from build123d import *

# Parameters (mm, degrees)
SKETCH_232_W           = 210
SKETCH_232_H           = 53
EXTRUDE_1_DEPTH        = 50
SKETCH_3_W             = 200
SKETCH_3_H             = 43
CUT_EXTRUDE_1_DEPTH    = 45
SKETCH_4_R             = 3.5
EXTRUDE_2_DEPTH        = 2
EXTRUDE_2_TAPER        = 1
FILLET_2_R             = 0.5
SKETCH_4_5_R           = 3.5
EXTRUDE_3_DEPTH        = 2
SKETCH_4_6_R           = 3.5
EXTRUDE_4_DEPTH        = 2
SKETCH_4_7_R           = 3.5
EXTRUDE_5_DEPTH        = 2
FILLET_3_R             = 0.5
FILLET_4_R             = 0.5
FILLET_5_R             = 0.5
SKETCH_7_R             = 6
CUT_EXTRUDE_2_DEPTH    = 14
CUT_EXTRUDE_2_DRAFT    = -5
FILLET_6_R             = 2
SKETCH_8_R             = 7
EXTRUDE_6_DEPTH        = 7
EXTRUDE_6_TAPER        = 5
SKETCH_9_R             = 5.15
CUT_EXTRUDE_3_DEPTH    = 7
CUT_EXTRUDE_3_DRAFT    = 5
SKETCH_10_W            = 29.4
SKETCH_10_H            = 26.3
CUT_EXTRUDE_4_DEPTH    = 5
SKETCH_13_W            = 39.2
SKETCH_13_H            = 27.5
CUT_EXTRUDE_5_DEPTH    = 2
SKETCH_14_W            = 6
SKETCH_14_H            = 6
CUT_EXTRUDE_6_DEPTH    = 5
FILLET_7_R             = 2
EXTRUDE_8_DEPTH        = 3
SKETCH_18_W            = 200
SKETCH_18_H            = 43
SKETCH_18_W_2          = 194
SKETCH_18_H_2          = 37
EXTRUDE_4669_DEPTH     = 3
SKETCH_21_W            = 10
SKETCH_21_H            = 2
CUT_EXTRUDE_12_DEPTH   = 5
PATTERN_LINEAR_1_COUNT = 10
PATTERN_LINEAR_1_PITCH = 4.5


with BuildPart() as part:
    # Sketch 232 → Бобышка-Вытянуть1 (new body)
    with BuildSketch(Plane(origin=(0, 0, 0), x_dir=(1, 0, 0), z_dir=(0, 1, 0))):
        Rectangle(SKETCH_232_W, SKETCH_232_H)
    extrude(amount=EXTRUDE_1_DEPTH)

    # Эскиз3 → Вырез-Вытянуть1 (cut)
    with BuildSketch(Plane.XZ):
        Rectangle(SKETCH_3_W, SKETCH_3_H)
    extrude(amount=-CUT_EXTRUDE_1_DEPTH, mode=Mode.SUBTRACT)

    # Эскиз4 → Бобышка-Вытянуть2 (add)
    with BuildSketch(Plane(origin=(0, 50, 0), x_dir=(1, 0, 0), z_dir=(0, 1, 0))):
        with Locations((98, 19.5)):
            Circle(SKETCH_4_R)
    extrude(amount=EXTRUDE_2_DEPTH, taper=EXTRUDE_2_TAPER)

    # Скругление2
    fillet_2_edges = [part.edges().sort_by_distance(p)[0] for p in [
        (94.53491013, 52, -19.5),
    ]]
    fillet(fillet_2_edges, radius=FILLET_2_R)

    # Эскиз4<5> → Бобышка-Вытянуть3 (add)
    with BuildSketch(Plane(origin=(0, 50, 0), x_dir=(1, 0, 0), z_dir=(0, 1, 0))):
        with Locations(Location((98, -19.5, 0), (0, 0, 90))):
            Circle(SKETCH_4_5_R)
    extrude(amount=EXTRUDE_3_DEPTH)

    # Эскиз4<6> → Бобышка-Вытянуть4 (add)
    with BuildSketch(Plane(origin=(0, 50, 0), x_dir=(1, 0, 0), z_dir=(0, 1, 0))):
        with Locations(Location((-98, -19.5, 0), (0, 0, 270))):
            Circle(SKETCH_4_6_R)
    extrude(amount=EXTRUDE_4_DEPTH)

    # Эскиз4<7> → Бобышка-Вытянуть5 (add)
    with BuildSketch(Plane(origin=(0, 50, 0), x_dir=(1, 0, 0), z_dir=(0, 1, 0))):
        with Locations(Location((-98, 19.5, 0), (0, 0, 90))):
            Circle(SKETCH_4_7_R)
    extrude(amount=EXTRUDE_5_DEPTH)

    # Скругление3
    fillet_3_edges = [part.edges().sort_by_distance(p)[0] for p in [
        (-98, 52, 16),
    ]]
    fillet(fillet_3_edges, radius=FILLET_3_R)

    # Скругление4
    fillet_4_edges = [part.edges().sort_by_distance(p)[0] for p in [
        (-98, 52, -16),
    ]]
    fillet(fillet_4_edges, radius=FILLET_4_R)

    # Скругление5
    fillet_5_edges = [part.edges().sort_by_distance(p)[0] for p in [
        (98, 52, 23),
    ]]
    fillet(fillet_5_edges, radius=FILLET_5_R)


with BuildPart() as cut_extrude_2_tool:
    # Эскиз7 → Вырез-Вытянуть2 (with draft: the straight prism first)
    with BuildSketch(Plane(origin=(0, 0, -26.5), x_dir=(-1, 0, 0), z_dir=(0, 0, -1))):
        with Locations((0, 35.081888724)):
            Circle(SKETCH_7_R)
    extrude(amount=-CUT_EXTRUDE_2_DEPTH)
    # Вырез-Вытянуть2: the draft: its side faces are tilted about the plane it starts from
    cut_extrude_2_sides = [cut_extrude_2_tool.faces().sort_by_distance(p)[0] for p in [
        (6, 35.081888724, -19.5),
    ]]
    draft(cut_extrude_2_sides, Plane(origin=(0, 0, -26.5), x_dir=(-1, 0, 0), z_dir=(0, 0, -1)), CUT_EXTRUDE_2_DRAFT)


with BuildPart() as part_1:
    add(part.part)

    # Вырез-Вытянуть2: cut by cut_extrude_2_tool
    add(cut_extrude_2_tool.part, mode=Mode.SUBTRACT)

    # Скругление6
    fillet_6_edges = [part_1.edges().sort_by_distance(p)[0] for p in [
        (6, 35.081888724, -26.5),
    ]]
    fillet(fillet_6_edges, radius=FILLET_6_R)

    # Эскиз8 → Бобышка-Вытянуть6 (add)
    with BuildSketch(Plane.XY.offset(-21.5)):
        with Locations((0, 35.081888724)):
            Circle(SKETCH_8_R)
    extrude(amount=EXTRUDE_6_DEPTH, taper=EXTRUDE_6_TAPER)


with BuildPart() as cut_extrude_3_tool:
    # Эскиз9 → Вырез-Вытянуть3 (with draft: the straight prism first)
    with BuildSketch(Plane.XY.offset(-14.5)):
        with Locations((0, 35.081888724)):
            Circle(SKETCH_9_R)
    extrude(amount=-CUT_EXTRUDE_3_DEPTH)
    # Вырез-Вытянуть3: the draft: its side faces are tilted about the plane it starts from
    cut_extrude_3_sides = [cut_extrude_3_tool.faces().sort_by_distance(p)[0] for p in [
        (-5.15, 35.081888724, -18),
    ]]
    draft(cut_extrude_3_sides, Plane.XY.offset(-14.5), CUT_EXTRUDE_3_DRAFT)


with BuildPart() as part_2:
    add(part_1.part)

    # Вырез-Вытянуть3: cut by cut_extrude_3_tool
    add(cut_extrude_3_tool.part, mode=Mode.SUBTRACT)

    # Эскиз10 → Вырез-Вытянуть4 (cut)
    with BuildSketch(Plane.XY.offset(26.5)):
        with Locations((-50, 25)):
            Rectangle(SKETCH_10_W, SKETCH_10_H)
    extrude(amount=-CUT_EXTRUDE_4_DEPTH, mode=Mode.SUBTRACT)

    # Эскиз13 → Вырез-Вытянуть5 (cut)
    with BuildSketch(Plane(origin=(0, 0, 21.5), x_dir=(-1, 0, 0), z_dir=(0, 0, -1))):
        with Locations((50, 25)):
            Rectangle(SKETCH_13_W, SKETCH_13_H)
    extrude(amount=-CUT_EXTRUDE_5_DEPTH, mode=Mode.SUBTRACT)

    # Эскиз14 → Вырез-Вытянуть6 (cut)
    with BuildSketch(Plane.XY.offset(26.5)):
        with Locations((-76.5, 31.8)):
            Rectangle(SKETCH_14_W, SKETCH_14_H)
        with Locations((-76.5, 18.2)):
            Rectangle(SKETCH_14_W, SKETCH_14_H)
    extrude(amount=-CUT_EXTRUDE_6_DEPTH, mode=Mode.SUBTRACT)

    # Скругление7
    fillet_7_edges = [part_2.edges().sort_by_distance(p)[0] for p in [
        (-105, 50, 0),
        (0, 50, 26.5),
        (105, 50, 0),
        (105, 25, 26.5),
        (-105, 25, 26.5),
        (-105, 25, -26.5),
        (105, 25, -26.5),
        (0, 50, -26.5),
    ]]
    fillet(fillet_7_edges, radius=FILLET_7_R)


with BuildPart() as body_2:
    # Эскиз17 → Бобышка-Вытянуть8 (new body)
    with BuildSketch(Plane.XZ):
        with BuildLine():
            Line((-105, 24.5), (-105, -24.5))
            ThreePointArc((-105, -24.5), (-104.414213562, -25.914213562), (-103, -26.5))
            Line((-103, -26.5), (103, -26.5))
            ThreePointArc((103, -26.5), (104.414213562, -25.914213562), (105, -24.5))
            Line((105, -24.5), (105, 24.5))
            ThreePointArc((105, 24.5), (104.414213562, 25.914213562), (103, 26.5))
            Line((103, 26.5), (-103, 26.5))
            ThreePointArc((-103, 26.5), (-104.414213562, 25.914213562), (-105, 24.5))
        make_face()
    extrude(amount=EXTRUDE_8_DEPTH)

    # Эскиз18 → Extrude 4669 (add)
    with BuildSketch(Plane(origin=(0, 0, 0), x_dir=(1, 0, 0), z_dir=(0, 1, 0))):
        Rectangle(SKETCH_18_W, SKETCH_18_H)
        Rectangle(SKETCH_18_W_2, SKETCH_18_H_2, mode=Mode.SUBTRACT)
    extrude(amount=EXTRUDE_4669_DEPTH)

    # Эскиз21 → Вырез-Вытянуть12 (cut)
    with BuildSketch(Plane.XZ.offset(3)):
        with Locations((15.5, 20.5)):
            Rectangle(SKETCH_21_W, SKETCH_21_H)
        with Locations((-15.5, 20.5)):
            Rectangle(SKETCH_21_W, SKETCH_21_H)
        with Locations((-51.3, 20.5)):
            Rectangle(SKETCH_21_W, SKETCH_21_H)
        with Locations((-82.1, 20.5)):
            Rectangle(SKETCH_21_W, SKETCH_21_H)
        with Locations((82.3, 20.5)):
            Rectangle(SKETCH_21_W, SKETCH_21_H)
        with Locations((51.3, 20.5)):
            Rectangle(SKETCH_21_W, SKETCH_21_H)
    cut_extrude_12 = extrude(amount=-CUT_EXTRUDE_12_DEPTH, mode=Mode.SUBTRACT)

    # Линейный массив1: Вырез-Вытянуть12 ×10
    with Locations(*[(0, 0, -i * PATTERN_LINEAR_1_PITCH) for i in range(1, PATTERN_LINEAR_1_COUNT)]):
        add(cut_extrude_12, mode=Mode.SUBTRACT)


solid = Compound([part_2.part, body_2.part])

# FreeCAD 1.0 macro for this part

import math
import FreeCAD as App
import Part
import Sketcher

V = App.Vector
Q = App.Units.Quantity


def edges_at(feature, points):
    """Names of the edges that pass closest to the given points."""
    edges = feature.Shape.Edges
    near = lambda p: min(range(len(edges)), key=lambda i: edges[i].distToShape(Part.Vertex(*p))[0])
    return sorted({f"Edge{near(p) + 1}" for p in points})


def faces_at(feature, points):
    """Names of the faces that lie closest to the given points."""
    faces = feature.Shape.Faces
    near = lambda p: min(range(len(faces)), key=lambda i: faces[i].distToShape(Part.Vertex(*p))[0])
    return sorted({f"Face{near(p) + 1}" for p in points})


def add_polygon(sketch, points):
    """Adds a closed chain of lines whose ends are joined by coincident constraints."""
    first, n = sketch.GeometryCount, len(points)
    for a, b in zip(points, points[1:] + points[:1]):
        sketch.addGeometry(Part.LineSegment(App.Vector(*a, 0), App.Vector(*b, 0)), False)
    for i in range(n):
        sketch.addConstraint(Sketcher.Constraint("Coincident", first + i, 2, first + (i + 1) % n, 1))

doc = App.newDocument("Part")
params = doc.addObject("Spreadsheet::Sheet", "Params")
for row, (alias, value) in enumerate([
    ("sketch1_width", "210 mm"),
    ("sketch1_height", "53 mm"),
    ("pad1_length", "50 mm"),
    ("sketch2_width", "200 mm"),
    ("sketch2_height", "43 mm"),
    ("pocket1_length", "45 mm"),
    ("sketch3_diameter", "7 mm"),
    ("pad2_length", "2 mm"),
    ("pad2_taper", "-1 deg"),
    ("fillet_radius", "0.5 mm"),
    ("sketch4_diameter", "7 mm"),
    ("pad3_length", "2 mm"),
    ("sketch5_diameter", "7 mm"),
    ("pad4_length", "2 mm"),
    ("sketch6_diameter", "7 mm"),
    ("pad5_length", "2 mm"),
    ("fillet2_radius", "0.5 mm"),
    ("fillet3_radius", "0.5 mm"),
    ("fillet4_radius", "0.5 mm"),
    ("sketch7_diameter", "12 mm"),
    ("pad6_length", "14 mm"),
    ("draft_angle", "5 deg"),
    ("fillet5_radius", "2 mm"),
    ("sketch8_diameter", "14 mm"),
    ("pad7_length", "7 mm"),
    ("pad7_taper", "-5 deg"),
    ("sketch9_diameter", "10.3 mm"),
    ("pad8_length", "7 mm"),
    ("draft2_angle", "5 deg"),
    ("sketch10_width", "29.4 mm"),
    ("sketch10_height", "26.3 mm"),
    ("pocket2_length", "5 mm"),
    ("sketch11_width", "39.2 mm"),
    ("sketch11_height", "27.5 mm"),
    ("pocket3_length", "2 mm"),
    ("sketch12_width", "6 mm"),
    ("pocket4_length", "5 mm"),
    ("fillet6_radius", "2 mm"),
    ("sketch13_radius", "2 mm"),
    ("sketch13_width", "206 mm"),
    ("sketch13_height", "49 mm"),
    ("pad9_length", "3 mm"),
    ("sketch14_width", "200 mm"),
    ("sketch14_width2", "194 mm"),
    ("sketch14_height", "43 mm"),
    ("sketch14_height2", "37 mm"),
    ("pad10_length", "3 mm"),
    ("sketch15_width", "10 mm"),
    ("sketch15_height", "2 mm"),
    ("pocket5_length", "5 mm"),
    ("linearpattern_pitch", "4.5 mm"),
], start=1):
    params.set(f"A{row}", alias)
    params.set(f"B{row}", "=" + value)
    params.setAlias(f"B{row}", alias)

body = doc.addObject("PartDesign::Body", "Body")

# Sketch on XZ plane
sketch1 = body.newObject("Sketcher::SketchObject", "Sketch")
sketch1.AttachmentSupport = (doc.getObject("XZ_Plane"), [""])
sketch1.MapMode = "FlatFace"
add_polygon(sketch1, [(-105, -26.5), (-105, 26.5), (105, 26.5), (105, -26.5)])  # lines 0-3
sketch1.addConstraint(Sketcher.Constraint("Vertical", 0))
sketch1.addConstraint(Sketcher.Constraint("Horizontal", 1))
sketch1.addConstraint(Sketcher.Constraint("Vertical", 2))
sketch1.addConstraint(Sketcher.Constraint("Horizontal", 3))
sketch1.addConstraint(Sketcher.Constraint("Symmetric", 0, 2, 2, 2, -1, 1))
sketch1.addConstraint(Sketcher.Constraint("DistanceX", 1, 1, 1, 2, Q("210 mm")))
sketch1.addConstraint(Sketcher.Constraint("DistanceY", 0, 1, 0, 2, Q("53 mm")))
sketch1.setExpression("Constraints[9]", "Params.sketch1_width")
sketch1.setExpression("Constraints[10]", "Params.sketch1_height")
pad1 = body.newObject("PartDesign::Pad", "Pad")
pad1.Profile = sketch1
pad1.setExpression("Length", "Params.pad1_length")
pad1.Reversed = True

# Sketch on XZ plane
sketch2 = body.newObject("Sketcher::SketchObject", "Sketch001")
sketch2.AttachmentSupport = (doc.getObject("XZ_Plane"), [""])
sketch2.MapMode = "FlatFace"
add_polygon(sketch2, [(-100, 21.5), (-100, -21.5), (100, -21.5), (100, 21.5)])  # lines 0-3
sketch2.addConstraint(Sketcher.Constraint("Vertical", 0))
sketch2.addConstraint(Sketcher.Constraint("Horizontal", 1))
sketch2.addConstraint(Sketcher.Constraint("Vertical", 2))
sketch2.addConstraint(Sketcher.Constraint("Horizontal", 3))
sketch2.addConstraint(Sketcher.Constraint("Symmetric", 0, 2, 2, 2, -1, 1))
sketch2.addConstraint(Sketcher.Constraint("DistanceX", 1, 1, 1, 2, Q("200 mm")))
sketch2.addConstraint(Sketcher.Constraint("DistanceY", 0, 2, 0, 1, Q("43 mm")))
sketch2.setExpression("Constraints[9]", "Params.sketch2_width")
sketch2.setExpression("Constraints[10]", "Params.sketch2_height")
pocket1 = body.newObject("PartDesign::Pocket", "Pocket")
pocket1.Profile = sketch2
pocket1.setExpression("Length", "Params.pocket1_length")

# Sketch on XZ plane
sketch3 = body.newObject("Sketcher::SketchObject", "Sketch002")
sketch3.AttachmentSupport = (doc.getObject("XZ_Plane"), [""])
sketch3.MapMode = "FlatFace"
sketch3.AttachmentOffset = App.Placement(V(0, 0, -50), App.Rotation())
sketch3.addGeometry(Part.Circle(V(98, -19.5, 0), V(0, 0, 1), 3.5), False)
sketch3.addConstraint(Sketcher.Constraint("Diameter", 0, Q("7 mm")))
sketch3.addConstraint(Sketcher.Constraint("DistanceX", -1, 1, 0, 3, Q("98 mm")))
sketch3.addConstraint(Sketcher.Constraint("DistanceY", 0, 3, -1, 1, Q("19.5 mm")))
sketch3.setExpression("Constraints[0]", "Params.sketch3_diameter")
pad2 = body.newObject("PartDesign::Pad", "Pad001")
pad2.Profile = sketch3
pad2.setExpression("Length", "Params.pad2_length")
pad2.Reversed = True
pad2.setExpression("TaperAngle", "Params.pad2_taper")
doc.recompute()

fillet = body.newObject("PartDesign::Fillet", "Fillet")
fillet.Base = (pad2, edges_at(pad2, [(94.535, 52, -19.5)]))
fillet.setExpression("Radius", "Params.fillet_radius")

# Sketch on XZ plane
sketch4 = body.newObject("Sketcher::SketchObject", "Sketch003")
sketch4.AttachmentSupport = (doc.getObject("XZ_Plane"), [""])
sketch4.MapMode = "FlatFace"
sketch4.AttachmentOffset = App.Placement(V(0, 0, -50), App.Rotation())
sketch4.addGeometry(Part.Circle(V(98, 19.5, 0), V(0, 0, 1), 3.5), False)
sketch4.addConstraint(Sketcher.Constraint("Diameter", 0, Q("7 mm")))
sketch4.addConstraint(Sketcher.Constraint("DistanceX", -1, 1, 0, 3, Q("98 mm")))
sketch4.addConstraint(Sketcher.Constraint("DistanceY", -1, 1, 0, 3, Q("19.5 mm")))
sketch4.setExpression("Constraints[0]", "Params.sketch4_diameter")
pad3 = body.newObject("PartDesign::Pad", "Pad002")
pad3.Profile = sketch4
pad3.setExpression("Length", "Params.pad3_length")
pad3.Reversed = True

# Sketch on XZ plane
sketch5 = body.newObject("Sketcher::SketchObject", "Sketch004")
sketch5.AttachmentSupport = (doc.getObject("XZ_Plane"), [""])
sketch5.MapMode = "FlatFace"
sketch5.AttachmentOffset = App.Placement(V(0, 0, -50), App.Rotation())
sketch5.addGeometry(Part.Circle(V(-98, 19.5, 0), V(0, 0, 1), 3.5), False)
sketch5.addConstraint(Sketcher.Constraint("Diameter", 0, Q("7 mm")))
sketch5.addConstraint(Sketcher.Constraint("DistanceX", 0, 3, -1, 1, Q("98 mm")))
sketch5.addConstraint(Sketcher.Constraint("DistanceY", -1, 1, 0, 3, Q("19.5 mm")))
sketch5.setExpression("Constraints[0]", "Params.sketch5_diameter")
pad4 = body.newObject("PartDesign::Pad", "Pad003")
pad4.Profile = sketch5
pad4.setExpression("Length", "Params.pad4_length")
pad4.Reversed = True

# Sketch on XZ plane
sketch6 = body.newObject("Sketcher::SketchObject", "Sketch005")
sketch6.AttachmentSupport = (doc.getObject("XZ_Plane"), [""])
sketch6.MapMode = "FlatFace"
sketch6.AttachmentOffset = App.Placement(V(0, 0, -50), App.Rotation())
sketch6.addGeometry(Part.Circle(V(-98, -19.5, 0), V(0, 0, 1), 3.5), False)
sketch6.addConstraint(Sketcher.Constraint("Diameter", 0, Q("7 mm")))
sketch6.addConstraint(Sketcher.Constraint("DistanceX", 0, 3, -1, 1, Q("98 mm")))
sketch6.addConstraint(Sketcher.Constraint("DistanceY", 0, 3, -1, 1, Q("19.5 mm")))
sketch6.setExpression("Constraints[0]", "Params.sketch6_diameter")
pad5 = body.newObject("PartDesign::Pad", "Pad004")
pad5.Profile = sketch6
pad5.setExpression("Length", "Params.pad5_length")
pad5.Reversed = True
doc.recompute()

fillet2 = body.newObject("PartDesign::Fillet", "Fillet001")
fillet2.Base = (pad5, edges_at(pad5, [(-98, 52, 16)]))
fillet2.setExpression("Radius", "Params.fillet2_radius")
doc.recompute()

fillet3 = body.newObject("PartDesign::Fillet", "Fillet002")
fillet3.Base = (fillet2, edges_at(fillet2, [(-98, 52, -16)]))
fillet3.setExpression("Radius", "Params.fillet3_radius")
doc.recompute()

fillet4 = body.newObject("PartDesign::Fillet", "Fillet003")
fillet4.Base = (fillet3, edges_at(fillet3, [(98, 52, 23)]))
fillet4.setExpression("Radius", "Params.fillet4_radius")
body2 = doc.addObject("PartDesign::Body", "Body001")

# Sketch on XY plane
sketch7 = body2.newObject("Sketcher::SketchObject", "Sketch006")
sketch7.AttachmentSupport = (doc.getObject("XY_Plane001"), [""])
sketch7.MapMode = "FlatFace"
sketch7.AttachmentOffset = App.Placement(V(0, 0, -26.5), App.Rotation())
sketch7.addGeometry(Part.Circle(V(0, 35.081889, 0), V(0, 0, 1), 6), False)
sketch7.addConstraint(Sketcher.Constraint("PointOnObject", 0, 3, -2))
sketch7.addConstraint(Sketcher.Constraint("Diameter", 0, Q("12 mm")))
sketch7.addConstraint(Sketcher.Constraint("DistanceY", -1, 1, 0, 3, Q("35.081889 mm")))
sketch7.setExpression("Constraints[1]", "Params.sketch7_diameter")
pad6 = body2.newObject("PartDesign::Pad", "Pad005")
pad6.Profile = sketch7
pad6.setExpression("Length", "Params.pad6_length")
doc.recompute()

datumplane = body2.newObject("PartDesign::Plane", "DatumPlane")
datumplane.AttachmentSupport = (doc.getObject("XY_Plane001"), [""])
datumplane.MapMode = "FlatFace"
datumplane.AttachmentOffset = App.Placement(V(0, 0, -26.5), App.Rotation())
draft = body2.newObject("PartDesign::Draft", "Draft")
draft.Base = (pad6, faces_at(pad6, [(6, 35.082, -19.5)]))
draft.NeutralPlane = (datumplane, [""])
draft.setExpression("Angle", "Params.draft_angle")
draft.Reversed = False
doc.recompute()

boolean = body.newObject("PartDesign::Boolean", "Boolean")
boolean.Type = "Cut"
boolean.addObjects([body2])
doc.recompute()

fillet5 = body.newObject("PartDesign::Fillet", "Fillet004")
fillet5.Base = (boolean, edges_at(boolean, [(6, 35.082, -26.5)]))
fillet5.setExpression("Radius", "Params.fillet5_radius")

# Sketch on XY plane
sketch8 = body.newObject("Sketcher::SketchObject", "Sketch007")
sketch8.AttachmentSupport = (doc.getObject("XY_Plane"), [""])
sketch8.MapMode = "FlatFace"
sketch8.AttachmentOffset = App.Placement(V(0, 0, -21.5), App.Rotation())
sketch8.addGeometry(Part.Circle(V(0, 35.081889, 0), V(0, 0, 1), 7), False)
sketch8.addConstraint(Sketcher.Constraint("PointOnObject", 0, 3, -2))
sketch8.addConstraint(Sketcher.Constraint("Diameter", 0, Q("14 mm")))
sketch8.addConstraint(Sketcher.Constraint("DistanceY", -1, 1, 0, 3, Q("35.081889 mm")))
sketch8.setExpression("Constraints[1]", "Params.sketch8_diameter")
pad7 = body.newObject("PartDesign::Pad", "Pad006")
pad7.Profile = sketch8
pad7.setExpression("Length", "Params.pad7_length")
pad7.setExpression("TaperAngle", "Params.pad7_taper")
body3 = doc.addObject("PartDesign::Body", "Body002")

# Sketch on XY plane
sketch9 = body3.newObject("Sketcher::SketchObject", "Sketch008")
sketch9.AttachmentSupport = (doc.getObject("XY_Plane002"), [""])
sketch9.MapMode = "FlatFace"
sketch9.AttachmentOffset = App.Placement(V(0, 0, -14.5), App.Rotation())
sketch9.addGeometry(Part.Circle(V(0, 35.081889, 0), V(0, 0, 1), 5.15), False)
sketch9.addConstraint(Sketcher.Constraint("PointOnObject", 0, 3, -2))
sketch9.addConstraint(Sketcher.Constraint("Diameter", 0, Q("10.3 mm")))
sketch9.addConstraint(Sketcher.Constraint("DistanceY", -1, 1, 0, 3, Q("35.081889 mm")))
sketch9.setExpression("Constraints[1]", "Params.sketch9_diameter")
pad8 = body3.newObject("PartDesign::Pad", "Pad007")
pad8.Profile = sketch9
pad8.setExpression("Length", "Params.pad8_length")
pad8.Reversed = True
doc.recompute()

datumplane2 = body3.newObject("PartDesign::Plane", "DatumPlane001")
datumplane2.AttachmentSupport = (doc.getObject("XY_Plane002"), [""])
datumplane2.MapMode = "FlatFace"
datumplane2.AttachmentOffset = App.Placement(V(0, 0, -14.5), App.Rotation())
draft2 = body3.newObject("PartDesign::Draft", "Draft001")
draft2.Base = (pad8, faces_at(pad8, [(-5.15, 35.082, -18)]))
draft2.NeutralPlane = (datumplane2, [""])
draft2.setExpression("Angle", "Params.draft2_angle")
draft2.Reversed = False
doc.recompute()

boolean2 = body.newObject("PartDesign::Boolean", "Boolean001")
boolean2.Type = "Cut"
boolean2.addObjects([body3])

# Sketch on XY plane
sketch10 = body.newObject("Sketcher::SketchObject", "Sketch009")
sketch10.AttachmentSupport = (doc.getObject("XY_Plane"), [""])
sketch10.MapMode = "FlatFace"
sketch10.AttachmentOffset = App.Placement(V(0, 0, 26.5), App.Rotation())
add_polygon(sketch10, [(-64.7, 38.15), (-64.7, 11.85), (-35.3, 11.85), (-35.3, 38.15)])  # lines 0-3
sketch10.addConstraint(Sketcher.Constraint("Vertical", 0))
sketch10.addConstraint(Sketcher.Constraint("Horizontal", 1))
sketch10.addConstraint(Sketcher.Constraint("Vertical", 2))
sketch10.addConstraint(Sketcher.Constraint("Horizontal", 3))
sketch10.addConstraint(Sketcher.Constraint("DistanceX", 1, 1, 1, 2, Q("29.4 mm")))
sketch10.addConstraint(Sketcher.Constraint("DistanceY", 0, 2, 0, 1, Q("26.3 mm")))
sketch10.addConstraint(Sketcher.Constraint("DistanceX", 0, 2, -1, 1, Q("64.7 mm")))
sketch10.addConstraint(Sketcher.Constraint("DistanceY", -1, 1, 0, 2, Q("11.85 mm")))
sketch10.setExpression("Constraints[8]", "Params.sketch10_width")
sketch10.setExpression("Constraints[9]", "Params.sketch10_height")
pocket2 = body.newObject("PartDesign::Pocket", "Pocket001")
pocket2.Profile = sketch10
pocket2.setExpression("Length", "Params.pocket2_length")

# Sketch on XY plane
sketch11 = body.newObject("Sketcher::SketchObject", "Sketch010")
sketch11.AttachmentSupport = (doc.getObject("XY_Plane"), [""])
sketch11.MapMode = "FlatFace"
sketch11.AttachmentOffset = App.Placement(V(0, 0, 21.5), App.Rotation())
add_polygon(sketch11, [(-30.4, 38.75), (-30.4, 11.25), (-69.6, 11.25), (-69.6, 38.75)])  # lines 0-3
sketch11.addConstraint(Sketcher.Constraint("Vertical", 0))
sketch11.addConstraint(Sketcher.Constraint("Horizontal", 1))
sketch11.addConstraint(Sketcher.Constraint("Vertical", 2))
sketch11.addConstraint(Sketcher.Constraint("Horizontal", 3))
sketch11.addConstraint(Sketcher.Constraint("DistanceX", 1, 2, 1, 1, Q("39.2 mm")))
sketch11.addConstraint(Sketcher.Constraint("DistanceY", 0, 2, 0, 1, Q("27.5 mm")))
sketch11.addConstraint(Sketcher.Constraint("DistanceX", 0, 2, -1, 1, Q("30.4 mm")))
sketch11.addConstraint(Sketcher.Constraint("DistanceY", -1, 1, 0, 2, Q("11.25 mm")))
sketch11.setExpression("Constraints[8]", "Params.sketch11_width")
sketch11.setExpression("Constraints[9]", "Params.sketch11_height")
pocket3 = body.newObject("PartDesign::Pocket", "Pocket002")
pocket3.Profile = sketch11
pocket3.setExpression("Length", "Params.pocket3_length")
pocket3.Reversed = True

# Sketch on XY plane
sketch12 = body.newObject("Sketcher::SketchObject", "Sketch011")
sketch12.AttachmentSupport = (doc.getObject("XY_Plane"), [""])
sketch12.MapMode = "FlatFace"
sketch12.AttachmentOffset = App.Placement(V(0, 0, 26.5), App.Rotation())
add_polygon(sketch12, [(-79.5, 34.8), (-79.5, 28.8), (-73.5, 28.8), (-73.5, 34.8)])  # lines 0-3
add_polygon(sketch12, [(-79.5, 21.2), (-79.5, 15.2), (-73.5, 15.2), (-73.5, 21.2)])  # lines 4-7
sketch12.addConstraint(Sketcher.Constraint("Vertical", 0))
sketch12.addConstraint(Sketcher.Constraint("Horizontal", 1))
sketch12.addConstraint(Sketcher.Constraint("Vertical", 2))
sketch12.addConstraint(Sketcher.Constraint("Horizontal", 3))
sketch12.addConstraint(Sketcher.Constraint("Vertical", 4))
sketch12.addConstraint(Sketcher.Constraint("Horizontal", 5))
sketch12.addConstraint(Sketcher.Constraint("Vertical", 6))
sketch12.addConstraint(Sketcher.Constraint("Horizontal", 7))
sketch12.addConstraint(Sketcher.Constraint("Vertical", 3, 2, 4, 2))
sketch12.addConstraint(Sketcher.Constraint("Vertical", 2, 2, 5, 2))
sketch12.addConstraint(Sketcher.Constraint("Equal", 7, 0))
sketch12.addConstraint(Sketcher.Constraint("Equal", 2, 4))
sketch12.addConstraint(Sketcher.Constraint("DistanceX", 1, 1, 1, 2, Q("6 mm")))
sketch12.addConstraint(Sketcher.Constraint("DistanceX", 0, 2, -1, 1, Q("79.5 mm")))
sketch12.addConstraint(Sketcher.Constraint("DistanceY", -1, 1, 0, 2, Q("28.8 mm")))
sketch12.addConstraint(Sketcher.Constraint("DistanceY", -1, 1, 4, 2, Q("15.2 mm")))
sketch12.setExpression("Constraints[20]", "Params.sketch12_width")
pocket4 = body.newObject("PartDesign::Pocket", "Pocket003")
pocket4.Profile = sketch12
pocket4.setExpression("Length", "Params.pocket4_length")
doc.recompute()

fillet6 = body.newObject("PartDesign::Fillet", "Fillet005")
fillet6.Base = (pocket4, edges_at(pocket4, [
    (-105, 50, 0),
    (0, 50, 26.5),
    (105, 50, 0),
    (105, 25, 26.5),
    (-105, 25, 26.5),
    (-105, 25, -26.5),
    (105, 25, -26.5),
    (0, 50, -26.5),
]))
fillet6.setExpression("Radius", "Params.fillet6_radius")
body4 = doc.addObject("PartDesign::Body", "Body003")

# Sketch on XZ plane
sketch13 = body4.newObject("Sketcher::SketchObject", "Sketch012")
sketch13.AttachmentSupport = (doc.getObject("XZ_Plane003"), [""])
sketch13.MapMode = "FlatFace"
sketch13.addGeometry(Part.LineSegment(V(-105, 24.5, 0), V(-105, -24.5, 0)), False)
sketch13.addGeometry(Part.ArcOfCircle(Part.Circle(V(-103, -24.5, 0), V(0, 0, 1), 2), math.radians(-180), math.radians(-90)), False)
sketch13.addGeometry(Part.LineSegment(V(-103, -26.5, 0), V(103, -26.5, 0)), False)
sketch13.addGeometry(Part.ArcOfCircle(Part.Circle(V(103, -24.5, 0), V(0, 0, 1), 2), math.radians(-90), math.radians(0)), False)
sketch13.addGeometry(Part.LineSegment(V(105, -24.5, 0), V(105, 24.5, 0)), False)
sketch13.addGeometry(Part.ArcOfCircle(Part.Circle(V(103, 24.5, 0), V(0, 0, 1), 2), math.radians(0), math.radians(90)), False)
sketch13.addGeometry(Part.LineSegment(V(103, 26.5, 0), V(-103, 26.5, 0)), False)
sketch13.addGeometry(Part.ArcOfCircle(Part.Circle(V(-103, 24.5, 0), V(0, 0, 1), 2), math.radians(90), math.radians(180)), False)
sketch13.addConstraint(Sketcher.Constraint("Tangent", 0, 2, 1, 1))
sketch13.addConstraint(Sketcher.Constraint("Tangent", 1, 2, 2, 1))
sketch13.addConstraint(Sketcher.Constraint("Tangent", 2, 2, 3, 1))
sketch13.addConstraint(Sketcher.Constraint("Tangent", 3, 2, 4, 1))
sketch13.addConstraint(Sketcher.Constraint("Tangent", 4, 2, 5, 1))
sketch13.addConstraint(Sketcher.Constraint("Tangent", 5, 2, 6, 1))
sketch13.addConstraint(Sketcher.Constraint("Tangent", 6, 2, 7, 1))
sketch13.addConstraint(Sketcher.Constraint("Tangent", 7, 2, 0, 1))
sketch13.addConstraint(Sketcher.Constraint("Vertical", 0))
sketch13.addConstraint(Sketcher.Constraint("Horizontal", 2))
sketch13.addConstraint(Sketcher.Constraint("Vertical", 4))
sketch13.addConstraint(Sketcher.Constraint("Horizontal", 6))
sketch13.addConstraint(Sketcher.Constraint("Equal", 1, 3))
sketch13.addConstraint(Sketcher.Constraint("Equal", 3, 5))
sketch13.addConstraint(Sketcher.Constraint("Equal", 5, 7))
sketch13.addConstraint(Sketcher.Constraint("Symmetric", 1, 3, 5, 3, -1, 1))
sketch13.addConstraint(Sketcher.Constraint("Radius", 1, Q("2 mm")))
sketch13.addConstraint(Sketcher.Constraint("DistanceX", 2, 1, 2, 2, Q("206 mm")))
sketch13.addConstraint(Sketcher.Constraint("DistanceY", 0, 2, 0, 1, Q("49 mm")))
sketch13.setExpression("Constraints[16]", "Params.sketch13_radius")
sketch13.setExpression("Constraints[17]", "Params.sketch13_width")
sketch13.setExpression("Constraints[18]", "Params.sketch13_height")
pad9 = body4.newObject("PartDesign::Pad", "Pad008")
pad9.Profile = sketch13
pad9.setExpression("Length", "Params.pad9_length")

# Sketch on XZ plane
sketch14 = body4.newObject("Sketcher::SketchObject", "Sketch013")
sketch14.AttachmentSupport = (doc.getObject("XZ_Plane003"), [""])
sketch14.MapMode = "FlatFace"
add_polygon(sketch14, [(-100, -21.5), (-100, 21.5), (100, 21.5), (100, -21.5)])  # lines 0-3
add_polygon(sketch14, [(97, 18.5), (-97, 18.5), (-97, -18.5), (97, -18.5)])  # lines 4-7
sketch14.addConstraint(Sketcher.Constraint("Vertical", 0))
sketch14.addConstraint(Sketcher.Constraint("Horizontal", 1))
sketch14.addConstraint(Sketcher.Constraint("Vertical", 2))
sketch14.addConstraint(Sketcher.Constraint("Horizontal", 3))
sketch14.addConstraint(Sketcher.Constraint("Horizontal", 4))
sketch14.addConstraint(Sketcher.Constraint("Vertical", 5))
sketch14.addConstraint(Sketcher.Constraint("Horizontal", 6))
sketch14.addConstraint(Sketcher.Constraint("Vertical", 7))
sketch14.addConstraint(Sketcher.Constraint("Symmetric", 0, 2, 2, 2, -1, 1))
sketch14.addConstraint(Sketcher.Constraint("Symmetric", 4, 2, 6, 2, -1, 1))
sketch14.addConstraint(Sketcher.Constraint("DistanceX", 1, 1, 1, 2, Q("200 mm")))
sketch14.addConstraint(Sketcher.Constraint("DistanceX", 4, 2, 4, 1, Q("194 mm")))
sketch14.addConstraint(Sketcher.Constraint("DistanceY", 0, 1, 0, 2, Q("43 mm")))
sketch14.addConstraint(Sketcher.Constraint("DistanceY", 5, 2, 5, 1, Q("37 mm")))
sketch14.setExpression("Constraints[18]", "Params.sketch14_width")
sketch14.setExpression("Constraints[19]", "Params.sketch14_width2")
sketch14.setExpression("Constraints[20]", "Params.sketch14_height")
sketch14.setExpression("Constraints[21]", "Params.sketch14_height2")
pad10 = body4.newObject("PartDesign::Pad", "Pad009")
pad10.Profile = sketch14
pad10.setExpression("Length", "Params.pad10_length")
pad10.Reversed = True

# Sketch on XZ plane
sketch15 = body4.newObject("Sketcher::SketchObject", "Sketch014")
sketch15.AttachmentSupport = (doc.getObject("XZ_Plane003"), [""])
sketch15.MapMode = "FlatFace"
sketch15.AttachmentOffset = App.Placement(V(0, 0, 3), App.Rotation())
add_polygon(sketch15, [(10.5, 21.5), (10.5, 19.5), (20.5, 19.5), (20.5, 21.5)])  # lines 0-3
add_polygon(sketch15, [(-20.5, 21.5), (-20.5, 19.5), (-10.5, 19.5), (-10.5, 21.5)])  # lines 4-7
add_polygon(sketch15, [(-56.3, 21.5), (-56.3, 19.5), (-46.3, 19.5), (-46.3, 21.5)])  # lines 8-11
add_polygon(sketch15, [(-87.1, 21.5), (-87.1, 19.5), (-77.1, 19.5), (-77.1, 21.5)])  # lines 12-15
add_polygon(sketch15, [(77.3, 21.5), (77.3, 19.5), (87.3, 19.5), (87.3, 21.5)])  # lines 16-19
add_polygon(sketch15, [(46.3, 21.5), (46.3, 19.5), (56.3, 19.5), (56.3, 21.5)])  # lines 20-23
sketch15.addConstraint(Sketcher.Constraint("Vertical", 0))
sketch15.addConstraint(Sketcher.Constraint("Horizontal", 1))
sketch15.addConstraint(Sketcher.Constraint("Vertical", 2))
sketch15.addConstraint(Sketcher.Constraint("Horizontal", 3))
sketch15.addConstraint(Sketcher.Constraint("Vertical", 4))
sketch15.addConstraint(Sketcher.Constraint("Horizontal", 5))
sketch15.addConstraint(Sketcher.Constraint("Vertical", 6))
sketch15.addConstraint(Sketcher.Constraint("Horizontal", 7))
sketch15.addConstraint(Sketcher.Constraint("Vertical", 8))
sketch15.addConstraint(Sketcher.Constraint("Horizontal", 9))
sketch15.addConstraint(Sketcher.Constraint("Vertical", 10))
sketch15.addConstraint(Sketcher.Constraint("Horizontal", 11))
sketch15.addConstraint(Sketcher.Constraint("Vertical", 12))
sketch15.addConstraint(Sketcher.Constraint("Horizontal", 13))
sketch15.addConstraint(Sketcher.Constraint("Vertical", 14))
sketch15.addConstraint(Sketcher.Constraint("Horizontal", 15))
sketch15.addConstraint(Sketcher.Constraint("Vertical", 16))
sketch15.addConstraint(Sketcher.Constraint("Horizontal", 17))
sketch15.addConstraint(Sketcher.Constraint("Vertical", 18))
sketch15.addConstraint(Sketcher.Constraint("Horizontal", 19))
sketch15.addConstraint(Sketcher.Constraint("Vertical", 20))
sketch15.addConstraint(Sketcher.Constraint("Horizontal", 21))
sketch15.addConstraint(Sketcher.Constraint("Vertical", 22))
sketch15.addConstraint(Sketcher.Constraint("Horizontal", 23))
sketch15.addConstraint(Sketcher.Constraint("Symmetric", 1, 2, 4, 2, -2))
sketch15.addConstraint(Sketcher.Constraint("Symmetric", 3, 2, 6, 2, -2))
sketch15.addConstraint(Sketcher.Constraint("Symmetric", 9, 2, 20, 2, -2))
sketch15.addConstraint(Sketcher.Constraint("Symmetric", 11, 2, 22, 2, -2))
sketch15.addConstraint(Sketcher.Constraint("Horizontal", 5, 2, 8, 2))
sketch15.addConstraint(Sketcher.Constraint("Horizontal", 7, 2, 10, 2))
sketch15.addConstraint(Sketcher.Constraint("Horizontal", 9, 2, 12, 2))
sketch15.addConstraint(Sketcher.Constraint("Horizontal", 11, 2, 14, 2))
sketch15.addConstraint(Sketcher.Constraint("Horizontal", 13, 2, 16, 2))
sketch15.addConstraint(Sketcher.Constraint("Horizontal", 15, 2, 18, 2))
sketch15.addConstraint(Sketcher.Constraint("Equal", 7, 9))
sketch15.addConstraint(Sketcher.Constraint("Equal", 11, 13))
sketch15.addConstraint(Sketcher.Constraint("Equal", 15, 17))
sketch15.addConstraint(Sketcher.Constraint("DistanceX", 1, 1, 1, 2, Q("10 mm")))
sketch15.addConstraint(Sketcher.Constraint("DistanceY", 0, 2, 0, 1, Q("2 mm")))
sketch15.addConstraint(Sketcher.Constraint("DistanceX", 4, 2, 0, 2, Q("31 mm")))
sketch15.addConstraint(Sketcher.Constraint("DistanceX", 20, 2, 16, 2, Q("31 mm")))
sketch15.addConstraint(Sketcher.Constraint("DistanceY", -1, 1, 0, 2, Q("19.5 mm")))
sketch15.addConstraint(Sketcher.Constraint("DistanceX", 8, 2, -1, 1, Q("56.3 mm")))
sketch15.addConstraint(Sketcher.Constraint("DistanceX", 12, 2, -1, 1, Q("87.1 mm")))
sketch15.setExpression("Constraints[61]", "Params.sketch15_width")
sketch15.setExpression("Constraints[62]", "Params.sketch15_height")
pocket5 = body4.newObject("PartDesign::Pocket", "Pocket004")
pocket5.Profile = sketch15
pocket5.setExpression("Length", "Params.pocket5_length")
doc.recompute()

linearpattern = body4.newObject("PartDesign::LinearPattern", "LinearPattern")
linearpattern.Originals = [pocket5]
linearpattern.Direction = (doc.getObject("Z_Axis003"), [""])
linearpattern.Mode = "offset"
linearpattern.setExpression("Offset", "Params.linearpattern_pitch")
linearpattern.Occurrences = 10
linearpattern.Reversed = True
body4.Tip = linearpattern

doc.recompute()
